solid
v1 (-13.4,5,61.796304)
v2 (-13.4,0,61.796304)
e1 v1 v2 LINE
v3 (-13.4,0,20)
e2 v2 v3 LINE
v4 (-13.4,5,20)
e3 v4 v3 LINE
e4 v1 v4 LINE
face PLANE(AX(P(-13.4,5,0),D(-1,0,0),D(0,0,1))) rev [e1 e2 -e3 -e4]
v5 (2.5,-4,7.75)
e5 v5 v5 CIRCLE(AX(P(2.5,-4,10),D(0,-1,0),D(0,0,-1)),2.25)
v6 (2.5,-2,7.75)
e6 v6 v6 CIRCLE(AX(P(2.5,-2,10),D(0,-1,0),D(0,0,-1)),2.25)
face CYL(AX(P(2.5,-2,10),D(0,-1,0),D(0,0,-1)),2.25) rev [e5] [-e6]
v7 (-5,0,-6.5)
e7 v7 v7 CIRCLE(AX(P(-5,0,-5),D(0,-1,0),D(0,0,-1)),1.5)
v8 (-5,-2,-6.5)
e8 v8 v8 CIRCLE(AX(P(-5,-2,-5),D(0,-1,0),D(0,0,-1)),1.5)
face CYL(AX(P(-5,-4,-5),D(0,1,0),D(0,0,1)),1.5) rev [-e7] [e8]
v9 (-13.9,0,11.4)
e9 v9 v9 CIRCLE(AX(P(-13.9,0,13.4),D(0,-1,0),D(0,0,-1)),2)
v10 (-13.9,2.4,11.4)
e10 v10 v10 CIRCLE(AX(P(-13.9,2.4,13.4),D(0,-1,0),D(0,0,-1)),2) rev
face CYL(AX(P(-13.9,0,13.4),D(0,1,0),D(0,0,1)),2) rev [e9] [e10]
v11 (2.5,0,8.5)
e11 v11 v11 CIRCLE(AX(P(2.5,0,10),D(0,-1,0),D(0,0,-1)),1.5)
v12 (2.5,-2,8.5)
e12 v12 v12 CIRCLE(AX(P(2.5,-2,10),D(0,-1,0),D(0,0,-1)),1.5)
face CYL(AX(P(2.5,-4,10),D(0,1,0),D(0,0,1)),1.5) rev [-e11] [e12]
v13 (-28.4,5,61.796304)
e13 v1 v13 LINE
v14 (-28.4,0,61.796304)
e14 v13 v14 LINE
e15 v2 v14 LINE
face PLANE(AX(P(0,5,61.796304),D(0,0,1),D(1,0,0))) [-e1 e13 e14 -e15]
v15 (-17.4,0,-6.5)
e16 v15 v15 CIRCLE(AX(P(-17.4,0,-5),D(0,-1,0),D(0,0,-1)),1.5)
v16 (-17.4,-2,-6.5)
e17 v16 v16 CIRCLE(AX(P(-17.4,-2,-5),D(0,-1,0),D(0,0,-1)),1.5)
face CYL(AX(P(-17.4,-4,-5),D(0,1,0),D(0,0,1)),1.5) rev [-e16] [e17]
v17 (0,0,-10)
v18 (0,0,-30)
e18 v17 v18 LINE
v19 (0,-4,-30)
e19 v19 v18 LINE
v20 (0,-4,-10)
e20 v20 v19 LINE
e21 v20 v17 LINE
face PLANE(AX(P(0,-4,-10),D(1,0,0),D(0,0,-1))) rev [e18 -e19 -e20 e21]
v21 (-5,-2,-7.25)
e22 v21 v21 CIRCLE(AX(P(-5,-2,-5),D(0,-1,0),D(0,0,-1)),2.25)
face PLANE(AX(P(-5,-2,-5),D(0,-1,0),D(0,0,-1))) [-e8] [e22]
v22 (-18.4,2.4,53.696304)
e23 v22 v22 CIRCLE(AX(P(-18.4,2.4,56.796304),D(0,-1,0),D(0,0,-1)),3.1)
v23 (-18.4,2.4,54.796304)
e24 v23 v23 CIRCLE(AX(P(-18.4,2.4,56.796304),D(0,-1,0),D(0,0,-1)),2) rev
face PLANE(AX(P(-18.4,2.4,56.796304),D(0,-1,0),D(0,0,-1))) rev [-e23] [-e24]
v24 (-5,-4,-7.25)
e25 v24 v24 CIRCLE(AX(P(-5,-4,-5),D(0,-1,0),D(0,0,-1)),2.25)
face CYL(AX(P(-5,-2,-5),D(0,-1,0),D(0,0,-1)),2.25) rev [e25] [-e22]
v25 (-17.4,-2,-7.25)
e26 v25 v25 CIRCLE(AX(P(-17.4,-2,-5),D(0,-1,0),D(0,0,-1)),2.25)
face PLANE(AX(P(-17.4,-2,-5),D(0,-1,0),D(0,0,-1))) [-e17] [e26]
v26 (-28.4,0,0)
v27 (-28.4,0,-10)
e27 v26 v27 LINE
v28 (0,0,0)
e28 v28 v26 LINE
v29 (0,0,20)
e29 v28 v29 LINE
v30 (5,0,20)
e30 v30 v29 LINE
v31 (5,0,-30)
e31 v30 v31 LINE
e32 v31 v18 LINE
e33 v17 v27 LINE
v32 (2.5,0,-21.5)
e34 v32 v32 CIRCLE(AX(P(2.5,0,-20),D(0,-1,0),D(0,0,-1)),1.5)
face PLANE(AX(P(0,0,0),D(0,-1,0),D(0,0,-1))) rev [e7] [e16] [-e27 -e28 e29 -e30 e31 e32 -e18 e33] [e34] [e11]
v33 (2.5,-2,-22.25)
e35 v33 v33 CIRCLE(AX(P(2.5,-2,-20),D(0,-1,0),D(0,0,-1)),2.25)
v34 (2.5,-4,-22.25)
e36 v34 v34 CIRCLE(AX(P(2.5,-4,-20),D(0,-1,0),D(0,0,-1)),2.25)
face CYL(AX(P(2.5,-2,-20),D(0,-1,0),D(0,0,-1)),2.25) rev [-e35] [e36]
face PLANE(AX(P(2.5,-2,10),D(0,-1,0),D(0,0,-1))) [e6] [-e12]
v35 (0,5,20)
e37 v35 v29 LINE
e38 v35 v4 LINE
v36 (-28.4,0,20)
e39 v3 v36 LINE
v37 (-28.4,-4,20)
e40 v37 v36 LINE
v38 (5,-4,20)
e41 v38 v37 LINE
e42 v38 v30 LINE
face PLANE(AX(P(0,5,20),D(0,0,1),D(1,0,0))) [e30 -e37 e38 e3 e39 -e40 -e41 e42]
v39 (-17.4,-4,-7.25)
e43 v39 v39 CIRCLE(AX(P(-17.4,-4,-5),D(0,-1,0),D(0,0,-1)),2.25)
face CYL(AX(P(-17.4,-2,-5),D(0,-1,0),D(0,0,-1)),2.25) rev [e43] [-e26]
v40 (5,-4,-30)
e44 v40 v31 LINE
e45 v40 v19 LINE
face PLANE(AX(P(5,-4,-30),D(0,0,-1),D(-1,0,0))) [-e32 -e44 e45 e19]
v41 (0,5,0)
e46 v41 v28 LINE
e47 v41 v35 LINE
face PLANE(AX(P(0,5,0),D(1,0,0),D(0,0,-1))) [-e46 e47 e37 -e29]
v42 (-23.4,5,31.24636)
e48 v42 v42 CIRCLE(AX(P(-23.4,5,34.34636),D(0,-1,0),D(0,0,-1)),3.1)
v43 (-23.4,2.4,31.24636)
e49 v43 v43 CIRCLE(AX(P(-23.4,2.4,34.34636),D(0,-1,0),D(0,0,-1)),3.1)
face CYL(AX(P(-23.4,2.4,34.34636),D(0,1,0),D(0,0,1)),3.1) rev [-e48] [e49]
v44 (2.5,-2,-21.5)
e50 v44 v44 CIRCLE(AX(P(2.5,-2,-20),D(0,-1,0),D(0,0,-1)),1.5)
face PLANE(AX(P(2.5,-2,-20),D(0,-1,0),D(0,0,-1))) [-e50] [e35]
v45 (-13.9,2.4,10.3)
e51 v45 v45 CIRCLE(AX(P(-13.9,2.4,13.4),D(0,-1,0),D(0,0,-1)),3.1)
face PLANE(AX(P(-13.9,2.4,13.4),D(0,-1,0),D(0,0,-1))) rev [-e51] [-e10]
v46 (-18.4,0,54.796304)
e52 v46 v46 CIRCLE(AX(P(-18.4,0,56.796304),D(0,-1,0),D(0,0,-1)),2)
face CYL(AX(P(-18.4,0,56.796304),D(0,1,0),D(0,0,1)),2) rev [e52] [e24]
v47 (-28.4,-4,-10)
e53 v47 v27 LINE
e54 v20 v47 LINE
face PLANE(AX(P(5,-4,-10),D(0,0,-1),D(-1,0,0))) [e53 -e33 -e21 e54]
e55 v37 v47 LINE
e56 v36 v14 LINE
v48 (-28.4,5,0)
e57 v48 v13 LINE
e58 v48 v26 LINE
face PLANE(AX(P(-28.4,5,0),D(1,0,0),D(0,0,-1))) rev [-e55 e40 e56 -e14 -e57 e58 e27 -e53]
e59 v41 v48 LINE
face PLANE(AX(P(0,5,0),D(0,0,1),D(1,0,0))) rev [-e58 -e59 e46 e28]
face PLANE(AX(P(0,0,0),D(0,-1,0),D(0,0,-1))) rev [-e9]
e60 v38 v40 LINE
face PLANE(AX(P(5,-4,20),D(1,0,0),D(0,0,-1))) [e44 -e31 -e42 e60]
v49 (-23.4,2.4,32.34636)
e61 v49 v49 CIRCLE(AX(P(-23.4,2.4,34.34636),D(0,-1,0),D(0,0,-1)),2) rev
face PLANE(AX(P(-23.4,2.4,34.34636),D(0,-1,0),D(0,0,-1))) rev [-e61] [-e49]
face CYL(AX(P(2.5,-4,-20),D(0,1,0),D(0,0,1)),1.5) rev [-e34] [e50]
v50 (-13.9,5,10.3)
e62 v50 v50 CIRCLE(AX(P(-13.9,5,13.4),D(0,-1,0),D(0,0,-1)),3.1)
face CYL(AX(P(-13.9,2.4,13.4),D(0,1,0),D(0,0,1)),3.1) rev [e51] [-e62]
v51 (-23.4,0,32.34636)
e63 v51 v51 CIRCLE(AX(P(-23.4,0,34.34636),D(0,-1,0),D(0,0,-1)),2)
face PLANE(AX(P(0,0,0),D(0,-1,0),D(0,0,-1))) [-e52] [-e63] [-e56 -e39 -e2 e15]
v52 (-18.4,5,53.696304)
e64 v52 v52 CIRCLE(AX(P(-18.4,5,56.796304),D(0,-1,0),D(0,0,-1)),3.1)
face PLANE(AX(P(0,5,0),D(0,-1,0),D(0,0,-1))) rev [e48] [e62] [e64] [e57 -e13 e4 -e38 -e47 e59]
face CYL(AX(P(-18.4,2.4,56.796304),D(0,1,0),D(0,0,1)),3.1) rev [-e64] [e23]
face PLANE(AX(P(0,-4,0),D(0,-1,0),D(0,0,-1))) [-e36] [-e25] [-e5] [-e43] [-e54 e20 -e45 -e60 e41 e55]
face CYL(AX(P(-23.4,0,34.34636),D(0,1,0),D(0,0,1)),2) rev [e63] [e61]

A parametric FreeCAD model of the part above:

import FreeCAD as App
import Part
import Sketcher

V = App.Vector
Q = App.Units.Quantity

doc = App.newDocument("Part")
params = doc.addObject("Spreadsheet::Sheet", "Params")
for row, (alias, value) in enumerate([
    ("sketch1_width", "28.4 mm"),
    ("pad1_length", "5 mm"),
    ("sketch2_diameter", "6.2 mm"),
    ("pocket1_length", "2.6 mm"),
    ("sketch3_diameter", "4 mm"),
    ("sketch4_width", "13.4 mm"),
    ("sketch5_width", "5 mm"),
    ("sketch5_height", "30 mm"),
    ("sketch5_height2", "20 mm"),
    ("sketch5_width2", "33.4 mm"),
    ("pad2_length", "4 mm"),
    ("sketch6_diameter", "3 mm"),
    ("sketch7_diameter", "4.5 mm"),
    ("pocket5_length", "2 mm"),
], start=1):
    params.set(f"A{row}", alias)
    params.set(f"B{row}", "=" + value)
    params.setAlias(f"B{row}", alias)

body = doc.addObject("PartDesign::Body", "Body")

# Sketch on XZ plane
sketch1 = body.newObject("Sketcher::SketchObject", "Sketch")
sketch1.AttachmentSupport = (doc.getObject("XZ_Plane"), [""])
sketch1.MapMode = "FlatFace"
sketch1.addGeometry([
    Part.LineSegment(V(-28, 0, 0), V(-28, 62, 0)),
    Part.LineSegment(V(-28, 62, 0), V(0, 62, 0)),
    Part.LineSegment(V(0, 62, 0), V(0, 0, 0)),
    Part.LineSegment(V(0, 0, 0), V(-28, 0, 0)),
], False)
sketch1.addConstraint([
    Sketcher.Constraint("Coincident", 0, 2, 1, 1),
    Sketcher.Constraint("Coincident", 1, 2, 2, 1),
    Sketcher.Constraint("Coincident", 2, 2, 3, 1),
    Sketcher.Constraint("Coincident", 3, 2, 0, 1),
    Sketcher.Constraint("Vertical", 0),
    Sketcher.Constraint("Horizontal", 1),
    Sketcher.Constraint("Vertical", 2),
    Sketcher.Constraint("Horizontal", 3),
    Sketcher.Constraint("Coincident", 2, 2, -1, 1),
    Sketcher.Constraint("DistanceX", 1, 1, 1, 2, Q("28.4 mm")),
    Sketcher.Constraint("DistanceY", 0, 1, 0, 2, Q("61.796304 mm")),
])
sketch1.setExpression("Constraints[9]", "Params.sketch1_width")
pad1 = body.newObject("PartDesign::Pad", "Pad")
pad1.Profile = sketch1
pad1.setExpression("Length", "Params.pad1_length")
pad1.Reversed = True

# Sketch on XZ plane
sketch2 = body.newObject("Sketcher::SketchObject", "Sketch001")
sketch2.AttachmentSupport = (doc.getObject("XZ_Plane"), [""])
sketch2.MapMode = "FlatFace"
sketch2.AttachmentOffset = App.Placement(V(0, 0, -5), App.Rotation())
sketch2.addGeometry([
    Part.Circle(V(-13.9, 13.4, 0), V(0, 0, 1), 3.1),
    Part.Circle(V(-23.4, 34.3, 0), V(0, 0, 1), 3.1),
    Part.Circle(V(-18.4, 56.8, 0), V(0, 0, 1), 3.1),
], False)
sketch2.addConstraint([
    Sketcher.Constraint("Equal", 0, 1),
    Sketcher.Constraint("Equal", 1, 2),
    Sketcher.Constraint("Diameter", 0, Q("6.2 mm")),
    Sketcher.Constraint("DistanceX", 1, 3, 2, 3, Q("5 mm")),
    Sketcher.Constraint("DistanceX", 0, 3, -1, 1, Q("13.9 mm")),
    Sketcher.Constraint("DistanceY", -1, 1, 0, 3, Q("13.4 mm")),
    Sketcher.Constraint("DistanceX", 1, 3, -1, 1, Q("23.4 mm")),
    Sketcher.Constraint("DistanceY", -1, 1, 1, 3, Q("34.34636 mm")),
    Sketcher.Constraint("DistanceY", -1, 1, 2, 3, Q("56.796304 mm")),
])
sketch2.setExpression("Constraints[2]", "Params.sketch2_diameter")
pocket1 = body.newObject("PartDesign::Pocket", "Pocket")
pocket1.Profile = sketch2
pocket1.setExpression("Length", "Params.pocket1_length")
pocket1.Reversed = True

# Sketch on XZ plane
sketch3 = body.newObject("Sketcher::SketchObject", "Sketch002")
sketch3.AttachmentSupport = (doc.getObject("XZ_Plane"), [""])
sketch3.MapMode = "FlatFace"
sketch3.AttachmentOffset = App.Placement(V(0, 0, -5), App.Rotation())
sketch3.addGeometry([
    Part.Circle(V(-13.9, 13.4, 0), V(0, 0, 1), 2),
    Part.Circle(V(-23.4, 34.3, 0), V(0, 0, 1), 2),
    Part.Circle(V(-18.4, 56.8, 0), V(0, 0, 1), 2),
], False)
sketch3.addConstraint([
    Sketcher.Constraint("Equal", 0, 1),
    Sketcher.Constraint("Equal", 1, 2),
    Sketcher.Constraint("Diameter", 0, Q("4 mm")),
    Sketcher.Constraint("DistanceX", 1, 3, 2, 3, Q("5 mm")),
    Sketcher.Constraint("DistanceX", 0, 3, -1, 1, Q("13.9 mm")),
    Sketcher.Constraint("DistanceY", -1, 1, 0, 3, Q("13.4 mm")),
    Sketcher.Constraint("DistanceX", 1, 3, -1, 1, Q("23.4 mm")),
    Sketcher.Constraint("DistanceY", -1, 1, 1, 3, Q("34.34636 mm")),
    Sketcher.Constraint("DistanceY", -1, 1, 2, 3, Q("56.796304 mm")),
])
sketch3.setExpression("Constraints[2]", "Params.sketch3_diameter")
pocket2 = body.newObject("PartDesign::Pocket", "Pocket001")
pocket2.Profile = sketch3
pocket2.Type = "ThroughAll"
pocket2.Reversed = True

# Sketch on XZ plane
sketch4 = body.newObject("Sketcher::SketchObject", "Sketch003")
sketch4.AttachmentSupport = (doc.getObject("XZ_Plane"), [""])
sketch4.MapMode = "FlatFace"
sketch4.addGeometry([
    Part.LineSegment(V(-13, 20, 0), V(-13, 62, 0)),
    Part.LineSegment(V(-13, 62, 0), V(0, 62, 0)),
    Part.LineSegment(V(0, 62, 0), V(0, 20, 0)),
    Part.LineSegment(V(0, 20, 0), V(-13, 20, 0)),
], False)
sketch4.addConstraint([
    Sketcher.Constraint("Coincident", 0, 2, 1, 1),
    Sketcher.Constraint("Coincident", 1, 2, 2, 1),
    Sketcher.Constraint("Coincident", 2, 2, 3, 1),
    Sketcher.Constraint("Coincident", 3, 2, 0, 1),
    Sketcher.Constraint("Vertical", 0),
    Sketcher.Constraint("Horizontal", 1),
    Sketcher.Constraint("Vertical", 2),
    Sketcher.Constraint("Horizontal", 3),
    Sketcher.Constraint("PointOnObject", 1, 2, -2),
    Sketcher.Constraint("DistanceX", 1, 1, 1, 2, Q("13.4 mm")),
    Sketcher.Constraint("DistanceY", -1, 1, 2, 2, Q("20 mm")),
    Sketcher.Constraint("DistanceY", 0, 1, 0, 2, Q("41.796304 mm")),
])
sketch4.setExpression("Constraints[9]", "Params.sketch4_width")
pocket3 = body.newObject("PartDesign::Pocket", "Pocket002")
pocket3.Profile = sketch4
pocket3.Type = "ThroughAll"

# Sketch on XZ plane
sketch5 = body.newObject("Sketcher::SketchObject", "Sketch004")
sketch5.AttachmentSupport = (doc.getObject("XZ_Plane"), [""])
sketch5.MapMode = "FlatFace"
sketch5.addGeometry([
    Part.LineSegment(V(5, 20, 0), V(-28, 20, 0)),  # 0
    Part.LineSegment(V(-28, 20, 0), V(-28, -10, 0)),  # 1
    Part.LineSegment(V(-28, -10, 0), V(0, -10, 0)),  # 2
    Part.LineSegment(V(0, -10, 0), V(0, -30, 0)),  # 3
    Part.LineSegment(V(0, -30, 0), V(5, -30, 0)),  # 4
    Part.LineSegment(V(5, -30, 0), V(5, 20, 0)),  # 5
], False)
sketch5.addConstraint([
    Sketcher.Constraint("Coincident", 0, 2, 1, 1),
    Sketcher.Constraint("Coincident", 1, 2, 2, 1),
    Sketcher.Constraint("Coincident", 2, 2, 3, 1),
    Sketcher.Constraint("Coincident", 3, 2, 4, 1),
    Sketcher.Constraint("Coincident", 4, 2, 5, 1),
    Sketcher.Constraint("Coincident", 5, 2, 0, 1),
    Sketcher.Constraint("Horizontal", 0),
    Sketcher.Constraint("Vertical", 1),
    Sketcher.Constraint("Horizontal", 2),
    Sketcher.Constraint("Vertical", 3),
    Sketcher.Constraint("Horizontal", 4),
    Sketcher.Constraint("Vertical", 5),
    Sketcher.Constraint("PointOnObject", 2, 2, -2),
    Sketcher.Constraint("DistanceX", 4, 1, 4, 2, Q("5 mm")),
    Sketcher.Constraint("DistanceY", 1, 2, 1, 1, Q("30 mm")),
    Sketcher.Constraint("DistanceY", 3, 2, 3, 1, Q("20 mm")),
    Sketcher.Constraint("DistanceX", 0, 2, 0, 1, Q("33.4 mm")),
    Sketcher.Constraint("DistanceY", -1, 1, 0, 2, Q("20 mm")),
])
sketch5.setExpression("Constraints[13]", "Params.sketch5_width")
sketch5.setExpression("Constraints[14]", "Params.sketch5_height")
sketch5.setExpression("Constraints[15]", "Params.sketch5_height2")
sketch5.setExpression("Constraints[16]", "Params.sketch5_width2")
pad2 = body.newObject("PartDesign::Pad", "Pad001")
pad2.Profile = sketch5
pad2.setExpression("Length", "Params.pad2_length")

# Sketch on XZ plane
sketch6 = body.newObject("Sketcher::SketchObject", "Sketch005")
sketch6.AttachmentSupport = (doc.getObject("XZ_Plane"), [""])
sketch6.MapMode = "FlatFace"
sketch6.addGeometry([
    Part.Circle(V(-17.4, -5, 0), V(0, 0, 1), 1.5),
    Part.Circle(V(-5, -5, 0), V(0, 0, 1), 1.5),
    Part.Circle(V(2.5, 10, 0), V(0, 0, 1), 1.5),
    Part.Circle(V(2.5, -20, 0), V(0, 0, 1), 1.5),
], False)
sketch6.addConstraint([
    Sketcher.Constraint("Equal", 0, 1),
    Sketcher.Constraint("Equal", 1, 2),
    Sketcher.Constraint("Equal", 2, 3),
    Sketcher.Constraint("Horizontal", 0, 3, 1, 3),
    Sketcher.Constraint("Vertical", 2, 3, 3, 3),
    Sketcher.Constraint("Diameter", 0, Q("3 mm")),
    Sketcher.Constraint("DistanceY", 0, 3, -1, 1, Q("5 mm")),
    Sketcher.Constraint("DistanceX", 1, 3, -1, 1, Q("5 mm")),
    Sketcher.Constraint("DistanceY", -1, 1, 2, 3, Q("10 mm")),
    Sketcher.Constraint("DistanceY", 3, 3, -1, 1, Q("20 mm")),
    Sketcher.Constraint("DistanceX", 0, 3, -1, 1, Q("17.4 mm")),
    Sketcher.Constraint("DistanceX", -1, 1, 2, 3, Q("2.5 mm")),
])
sketch6.setExpression("Constraints[5]", "Params.sketch6_diameter")
pocket4 = body.newObject("PartDesign::Pocket", "Pocket003")
pocket4.Profile = sketch6
pocket4.Type = "ThroughAll"
pocket4.Reversed = True

# Sketch on XZ plane
sketch7 = body.newObject("Sketcher::SketchObject", "Sketch006")
sketch7.AttachmentSupport = (doc.getObject("XZ_Plane"), [""])
sketch7.MapMode = "FlatFace"
sketch7.AttachmentOffset = App.Placement(V(0, 0, 4), App.Rotation())
sketch7.addGeometry([
    Part.Circle(V(-17.4, -5, 0), V(0, 0, 1), 2.2),
    Part.Circle(V(-5, -5, 0), V(0, 0, 1), 2.2),
    Part.Circle(V(2.5, 10, 0), V(0, 0, 1), 2.2),
    Part.Circle(V(2.5, -20, 0), V(0, 0, 1), 2.2),
], False)
sketch7.addConstraint([
    Sketcher.Constraint("Equal", 0, 1),
    Sketcher.Constraint("Equal", 1, 2),
    Sketcher.Constraint("Equal", 2, 3),
    Sketcher.Constraint("Horizontal", 0, 3, 1, 3),
    Sketcher.Constraint("Vertical", 2, 3, 3, 3),
    Sketcher.Constraint("Diameter", 0, Q("4.5 mm")),
    Sketcher.Constraint("DistanceY", 0, 3, -1, 1, Q("5 mm")),
    Sketcher.Constraint("DistanceX", 1, 3, -1, 1, Q("5 mm")),
    Sketcher.Constraint("DistanceY", -1, 1, 2, 3, Q("10 mm")),
    Sketcher.Constraint("DistanceY", 3, 3, -1, 1, Q("20 mm")),
    Sketcher.Constraint("DistanceX", 0, 3, -1, 1, Q("17.4 mm")),
    Sketcher.Constraint("DistanceX", -1, 1, 2, 3, Q("2.5 mm")),
])
sketch7.setExpression("Constraints[5]", "Params.sketch7_diameter")
pocket5 = body.newObject("PartDesign::Pocket", "Pocket004")
pocket5.Profile = sketch7
pocket5.setExpression("Length", "Params.pocket5_length")

doc.recompute()
